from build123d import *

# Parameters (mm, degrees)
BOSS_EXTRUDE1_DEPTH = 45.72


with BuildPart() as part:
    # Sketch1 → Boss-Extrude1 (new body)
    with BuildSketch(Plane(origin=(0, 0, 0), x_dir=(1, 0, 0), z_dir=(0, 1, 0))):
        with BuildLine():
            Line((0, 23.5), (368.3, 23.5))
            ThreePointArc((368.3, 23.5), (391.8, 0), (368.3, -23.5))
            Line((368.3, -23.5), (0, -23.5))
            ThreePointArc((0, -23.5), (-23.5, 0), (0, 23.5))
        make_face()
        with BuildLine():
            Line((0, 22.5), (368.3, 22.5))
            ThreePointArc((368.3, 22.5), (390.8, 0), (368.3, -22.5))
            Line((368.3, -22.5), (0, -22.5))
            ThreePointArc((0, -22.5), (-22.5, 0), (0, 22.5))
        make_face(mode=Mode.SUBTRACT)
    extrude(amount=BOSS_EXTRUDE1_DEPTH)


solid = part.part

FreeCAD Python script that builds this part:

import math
import FreeCAD as App
import Part
import Sketcher
from FreeCAD import Vector
Q = App.Units.Quantity

doc = App.newDocument("Part")
body = doc.addObject("PartDesign::Body", "Body")

# Sketch on XZ plane
sketch1 = body.newObject("Sketcher::SketchObject", "Sketch")
sketch1.AttachmentSupport = (doc.getObject("XZ_Plane"), [""])
sketch1.MapMode = "FlatFace"
sketch1.addGeometry([
    Part.LineSegment(Vector(368.3, -23.5, 0), Vector(0, -23.5, 0)),  # 0
    Part.ArcOfCircle(Part.Circle(Vector(0, 0, 0), Vector(0, 0, 1), 23.5), math.radians(90), math.radians(270)),  # 1
    Part.LineSegment(Vector(0, 23.5, 0), Vector(368.3, 23.5, 0)),  # 2
    Part.ArcOfCircle(Part.Circle(Vector(368.3, 0, 0), Vector(0, 0, 1), 23.5), math.radians(-90), math.radians(90)),  # 3
    Part.LineSegment(Vector(0, -22.5, 0), Vector(368.3, -22.5, 0)),  # 4
    Part.ArcOfCircle(Part.Circle(Vector(368.3, 0, 0), Vector(0, 0, 1), 22.5), math.radians(-90), math.radians(90)),  # 5
    Part.LineSegment(Vector(368.3, 22.5, 0), Vector(0, 22.5, 0)),  # 6
    Part.ArcOfCircle(Part.Circle(Vector(0, 0, 0), Vector(0, 0, 1), 22.5), math.radians(90), math.radians(270)),  # 7
], False)
sketch1.addConstraint([
    Sketcher.Constraint("Tangent", 0, 2, 1, 2),
    Sketcher.Constraint("Tangent", 1, 1, 2, 1),
    Sketcher.Constraint("Tangent", 2, 2, 3, 2),
    Sketcher.Constraint("Tangent", 3, 1, 0, 1),
    Sketcher.Constraint("Tangent", 4, 2, 5, 1),
    Sketcher.Constraint("Tangent", 5, 2, 6, 1),
    Sketcher.Constraint("Tangent", 6, 2, 7, 1),
    Sketcher.Constraint("Tangent", 7, 2, 4, 1),
    Sketcher.Constraint("Horizontal", 0),
    Sketcher.Constraint("Horizontal", 2),
    Sketcher.Constraint("Horizontal", 4),
    Sketcher.Constraint("Horizontal", 6),
    Sketcher.Constraint("Coincident", 1, 3, -1, 1),
    Sketcher.Constraint("Coincident", 7, 3, -1, 1),
    Sketcher.Constraint("Vertical", 5, 3, 2, 2),
    Sketcher.Constraint("Radius", 1, Q("23.5 mm")),
    Sketcher.Constraint("Radius", 5, Q("22.5 mm")),
    Sketcher.Constraint("DistanceX", 0, 2, 0, 1, Q("368.3 mm")),
])
pad1 = body.newObject("PartDesign::Pad", "Pad")
pad1.Profile = sketch1
pad1.Length = 45.72
pad1.Reversed = True

doc.recompute()
